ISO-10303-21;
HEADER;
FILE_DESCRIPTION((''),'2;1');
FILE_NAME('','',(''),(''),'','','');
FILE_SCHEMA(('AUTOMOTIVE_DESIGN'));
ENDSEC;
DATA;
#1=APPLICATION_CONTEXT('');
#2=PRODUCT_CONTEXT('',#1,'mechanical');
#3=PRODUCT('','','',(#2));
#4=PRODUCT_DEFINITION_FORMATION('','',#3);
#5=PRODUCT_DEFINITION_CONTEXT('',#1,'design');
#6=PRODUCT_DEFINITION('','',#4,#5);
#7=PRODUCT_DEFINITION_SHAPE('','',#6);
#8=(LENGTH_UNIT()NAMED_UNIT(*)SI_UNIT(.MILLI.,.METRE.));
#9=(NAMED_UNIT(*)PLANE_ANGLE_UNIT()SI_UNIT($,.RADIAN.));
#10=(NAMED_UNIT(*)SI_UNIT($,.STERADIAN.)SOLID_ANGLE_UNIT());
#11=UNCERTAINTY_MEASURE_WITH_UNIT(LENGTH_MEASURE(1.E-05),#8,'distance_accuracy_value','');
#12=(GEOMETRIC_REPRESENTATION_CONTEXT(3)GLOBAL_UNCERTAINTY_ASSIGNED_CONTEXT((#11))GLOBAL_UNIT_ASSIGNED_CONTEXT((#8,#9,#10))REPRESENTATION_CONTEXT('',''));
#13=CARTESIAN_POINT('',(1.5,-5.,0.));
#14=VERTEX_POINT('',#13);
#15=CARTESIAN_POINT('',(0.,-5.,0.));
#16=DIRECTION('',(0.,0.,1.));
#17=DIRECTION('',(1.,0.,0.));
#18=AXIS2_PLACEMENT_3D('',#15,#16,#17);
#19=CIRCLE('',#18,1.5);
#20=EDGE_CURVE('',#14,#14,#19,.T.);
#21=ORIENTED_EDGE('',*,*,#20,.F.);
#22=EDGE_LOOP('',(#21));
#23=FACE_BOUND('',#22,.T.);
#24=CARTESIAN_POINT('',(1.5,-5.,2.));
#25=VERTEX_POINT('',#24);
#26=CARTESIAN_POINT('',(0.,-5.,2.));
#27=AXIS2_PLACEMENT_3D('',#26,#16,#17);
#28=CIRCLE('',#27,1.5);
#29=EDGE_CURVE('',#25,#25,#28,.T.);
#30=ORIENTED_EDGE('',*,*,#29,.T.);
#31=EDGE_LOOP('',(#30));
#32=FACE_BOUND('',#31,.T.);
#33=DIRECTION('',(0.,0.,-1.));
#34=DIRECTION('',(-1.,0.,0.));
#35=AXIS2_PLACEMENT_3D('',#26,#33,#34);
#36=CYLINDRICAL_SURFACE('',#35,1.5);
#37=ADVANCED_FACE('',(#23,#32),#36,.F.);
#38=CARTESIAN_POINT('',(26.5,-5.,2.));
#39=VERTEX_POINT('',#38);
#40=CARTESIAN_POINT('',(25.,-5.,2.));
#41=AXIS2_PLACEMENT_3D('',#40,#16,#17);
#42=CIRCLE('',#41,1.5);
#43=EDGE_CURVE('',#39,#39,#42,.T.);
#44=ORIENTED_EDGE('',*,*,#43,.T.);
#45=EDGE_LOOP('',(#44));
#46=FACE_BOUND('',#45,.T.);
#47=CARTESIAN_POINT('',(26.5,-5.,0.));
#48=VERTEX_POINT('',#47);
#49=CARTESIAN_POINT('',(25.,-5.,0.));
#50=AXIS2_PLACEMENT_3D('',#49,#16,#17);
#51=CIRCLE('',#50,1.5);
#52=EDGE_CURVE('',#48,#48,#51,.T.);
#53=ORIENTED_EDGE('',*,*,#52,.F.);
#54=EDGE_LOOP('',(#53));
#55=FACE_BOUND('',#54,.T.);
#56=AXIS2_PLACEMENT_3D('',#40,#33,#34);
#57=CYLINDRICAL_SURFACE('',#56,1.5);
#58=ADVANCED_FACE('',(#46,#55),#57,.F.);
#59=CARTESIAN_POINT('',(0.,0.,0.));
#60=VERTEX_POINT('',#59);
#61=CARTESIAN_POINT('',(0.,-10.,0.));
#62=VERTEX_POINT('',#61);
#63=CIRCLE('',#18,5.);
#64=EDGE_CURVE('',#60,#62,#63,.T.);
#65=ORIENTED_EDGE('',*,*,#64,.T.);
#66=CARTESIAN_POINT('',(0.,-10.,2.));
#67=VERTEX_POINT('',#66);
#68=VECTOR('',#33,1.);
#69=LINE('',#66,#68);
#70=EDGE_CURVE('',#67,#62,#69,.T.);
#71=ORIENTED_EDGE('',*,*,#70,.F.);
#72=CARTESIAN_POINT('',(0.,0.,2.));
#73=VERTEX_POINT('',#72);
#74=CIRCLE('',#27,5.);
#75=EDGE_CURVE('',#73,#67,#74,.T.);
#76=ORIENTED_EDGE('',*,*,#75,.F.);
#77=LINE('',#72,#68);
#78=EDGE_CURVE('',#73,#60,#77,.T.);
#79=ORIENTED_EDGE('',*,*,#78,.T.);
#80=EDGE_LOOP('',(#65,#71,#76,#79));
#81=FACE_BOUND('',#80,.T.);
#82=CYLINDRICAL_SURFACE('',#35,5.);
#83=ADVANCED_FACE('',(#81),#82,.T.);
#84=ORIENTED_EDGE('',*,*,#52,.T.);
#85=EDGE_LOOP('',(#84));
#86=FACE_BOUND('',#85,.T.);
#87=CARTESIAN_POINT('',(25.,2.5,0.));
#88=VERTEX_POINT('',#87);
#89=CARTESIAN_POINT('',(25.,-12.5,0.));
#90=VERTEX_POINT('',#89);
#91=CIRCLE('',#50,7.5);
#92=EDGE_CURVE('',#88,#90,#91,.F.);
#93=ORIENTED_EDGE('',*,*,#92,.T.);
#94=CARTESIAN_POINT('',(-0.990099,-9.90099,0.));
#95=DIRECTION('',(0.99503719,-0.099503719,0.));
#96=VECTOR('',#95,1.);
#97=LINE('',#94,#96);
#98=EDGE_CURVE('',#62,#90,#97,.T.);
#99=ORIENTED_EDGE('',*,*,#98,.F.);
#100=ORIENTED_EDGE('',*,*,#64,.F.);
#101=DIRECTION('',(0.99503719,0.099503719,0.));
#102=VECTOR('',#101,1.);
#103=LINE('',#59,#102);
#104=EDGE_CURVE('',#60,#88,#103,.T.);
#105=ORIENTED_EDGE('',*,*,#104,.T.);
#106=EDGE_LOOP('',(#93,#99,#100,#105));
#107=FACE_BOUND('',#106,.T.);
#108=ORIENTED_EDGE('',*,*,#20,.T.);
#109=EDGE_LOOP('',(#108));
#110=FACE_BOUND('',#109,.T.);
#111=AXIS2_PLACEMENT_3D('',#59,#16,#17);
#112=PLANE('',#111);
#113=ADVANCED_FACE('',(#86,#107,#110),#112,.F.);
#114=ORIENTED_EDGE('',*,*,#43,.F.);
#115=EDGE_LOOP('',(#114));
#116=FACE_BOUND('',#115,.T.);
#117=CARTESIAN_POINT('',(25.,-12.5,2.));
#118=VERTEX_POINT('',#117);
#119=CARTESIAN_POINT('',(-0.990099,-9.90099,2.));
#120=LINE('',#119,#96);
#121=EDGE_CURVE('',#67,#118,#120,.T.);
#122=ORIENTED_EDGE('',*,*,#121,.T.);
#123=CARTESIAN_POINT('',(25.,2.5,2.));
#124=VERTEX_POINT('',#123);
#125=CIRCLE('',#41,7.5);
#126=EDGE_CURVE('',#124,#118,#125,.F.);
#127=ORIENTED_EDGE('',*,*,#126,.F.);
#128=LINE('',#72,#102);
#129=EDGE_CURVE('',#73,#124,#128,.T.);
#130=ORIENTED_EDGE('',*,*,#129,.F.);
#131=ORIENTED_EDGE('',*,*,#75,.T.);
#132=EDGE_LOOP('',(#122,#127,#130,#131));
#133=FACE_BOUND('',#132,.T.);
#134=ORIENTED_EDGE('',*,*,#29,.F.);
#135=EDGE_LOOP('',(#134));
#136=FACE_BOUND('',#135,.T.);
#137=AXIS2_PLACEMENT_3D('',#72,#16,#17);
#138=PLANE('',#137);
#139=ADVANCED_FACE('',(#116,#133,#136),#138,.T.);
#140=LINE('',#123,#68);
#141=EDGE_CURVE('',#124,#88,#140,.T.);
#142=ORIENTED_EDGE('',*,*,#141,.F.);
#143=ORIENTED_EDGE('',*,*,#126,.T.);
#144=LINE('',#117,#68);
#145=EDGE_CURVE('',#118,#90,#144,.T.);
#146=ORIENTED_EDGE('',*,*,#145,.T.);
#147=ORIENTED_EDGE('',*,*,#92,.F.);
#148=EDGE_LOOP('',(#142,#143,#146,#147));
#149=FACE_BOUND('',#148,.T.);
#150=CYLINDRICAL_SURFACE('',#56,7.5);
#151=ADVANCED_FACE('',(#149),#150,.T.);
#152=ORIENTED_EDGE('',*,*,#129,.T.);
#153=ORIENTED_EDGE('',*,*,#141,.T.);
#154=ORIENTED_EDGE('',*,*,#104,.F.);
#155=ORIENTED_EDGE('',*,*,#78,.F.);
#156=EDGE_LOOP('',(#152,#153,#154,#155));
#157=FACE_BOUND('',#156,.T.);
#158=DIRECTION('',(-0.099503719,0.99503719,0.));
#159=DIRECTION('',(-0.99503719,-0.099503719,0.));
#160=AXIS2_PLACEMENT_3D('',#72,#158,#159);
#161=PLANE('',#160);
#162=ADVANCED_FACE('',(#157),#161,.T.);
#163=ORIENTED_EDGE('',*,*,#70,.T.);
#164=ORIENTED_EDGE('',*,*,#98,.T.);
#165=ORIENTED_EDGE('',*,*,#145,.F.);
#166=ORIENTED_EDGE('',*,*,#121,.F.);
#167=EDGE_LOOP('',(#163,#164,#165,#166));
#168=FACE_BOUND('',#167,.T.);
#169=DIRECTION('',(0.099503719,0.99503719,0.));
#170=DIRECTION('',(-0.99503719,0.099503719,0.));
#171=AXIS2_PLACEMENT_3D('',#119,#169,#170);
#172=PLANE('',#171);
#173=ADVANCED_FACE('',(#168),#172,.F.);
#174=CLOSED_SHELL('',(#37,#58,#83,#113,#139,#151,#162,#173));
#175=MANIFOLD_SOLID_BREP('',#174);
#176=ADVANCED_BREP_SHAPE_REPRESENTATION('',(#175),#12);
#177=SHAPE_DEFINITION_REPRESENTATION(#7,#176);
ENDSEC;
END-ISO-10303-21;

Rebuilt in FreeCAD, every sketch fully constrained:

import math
import FreeCAD as App
import Part
import Sketcher
from FreeCAD import Vector

doc = App.newDocument("Part")
body = doc.addObject("PartDesign::Body", "Body")

# Sketch on XY plane
sketch1 = body.newObject("Sketcher::SketchObject", "Sketch")
sketch1.AttachmentSupport = (doc.getObject("XY_Plane"), [""])
sketch1.MapMode = "FlatFace"
sketch1.addGeometry([
    Part.LineSegment(Vector(25, 2.5, 0), Vector(0, 0, 0)),  # 0
    Part.ArcOfCircle(Part.Circle(Vector(0, -5, 0), Vector(0, 0, 1), 5), math.radians(90), math.radians(270)),  # 1
    Part.LineSegment(Vector(0, -10, 0), Vector(25, -12.5, 0)),  # 2
    Part.ArcOfCircle(Part.Circle(Vector(25, -5, 0), Vector(0, 0, 1), 7.5), math.radians(-90), math.radians(90)),  # 3
    Part.Circle(Vector(25, -5, 0), Vector(0, 0, 1), 1.5),  # 4
    Part.Circle(Vector(0, -5, 0), Vector(0, 0, 1), 1.5),  # 5
], False)
sketch1.addConstraint([
    Sketcher.Constraint("Coincident", 0, 2, 1, 1),
    Sketcher.Constraint("Coincident", 1, 2, 2, 1),
    Sketcher.Constraint("Coincident", 2, 2, 3, 1),
    Sketcher.Constraint("Coincident", 3, 2, 0, 1),
    Sketcher.Constraint("Coincident", 0, 2, -1, 1),
    Sketcher.Constraint("Coincident", 4, 3, 3, 3),
    Sketcher.Constraint("Coincident", 5, 3, 1, 3),
    Sketcher.Constraint("Equal", 4, 5),
    Sketcher.Constraint("PointOnObject", 1, 3, -2),
    Sketcher.Constraint("PointOnObject", 1, 2, -2),
    Sketcher.Constraint("Horizontal", 1, 3, 3, 3),
    Sketcher.Constraint("Vertical", 4, 3, 2, 2),
    Sketcher.Constraint("Vertical", 2, 2, 3, 2),
    Sketcher.Constraint("Diameter", 4, 3.0),
    Sketcher.Constraint("Radius", 1, 5.0),
    Sketcher.Constraint("Radius", 3, 7.5),
    Sketcher.Constraint("DistanceX", -1, 1, 3, 3, 25.0),
])
pad1 = body.newObject("PartDesign::Pad", "Pad")
pad1.Profile = sketch1
pad1.Length = 2

doc.recompute()
